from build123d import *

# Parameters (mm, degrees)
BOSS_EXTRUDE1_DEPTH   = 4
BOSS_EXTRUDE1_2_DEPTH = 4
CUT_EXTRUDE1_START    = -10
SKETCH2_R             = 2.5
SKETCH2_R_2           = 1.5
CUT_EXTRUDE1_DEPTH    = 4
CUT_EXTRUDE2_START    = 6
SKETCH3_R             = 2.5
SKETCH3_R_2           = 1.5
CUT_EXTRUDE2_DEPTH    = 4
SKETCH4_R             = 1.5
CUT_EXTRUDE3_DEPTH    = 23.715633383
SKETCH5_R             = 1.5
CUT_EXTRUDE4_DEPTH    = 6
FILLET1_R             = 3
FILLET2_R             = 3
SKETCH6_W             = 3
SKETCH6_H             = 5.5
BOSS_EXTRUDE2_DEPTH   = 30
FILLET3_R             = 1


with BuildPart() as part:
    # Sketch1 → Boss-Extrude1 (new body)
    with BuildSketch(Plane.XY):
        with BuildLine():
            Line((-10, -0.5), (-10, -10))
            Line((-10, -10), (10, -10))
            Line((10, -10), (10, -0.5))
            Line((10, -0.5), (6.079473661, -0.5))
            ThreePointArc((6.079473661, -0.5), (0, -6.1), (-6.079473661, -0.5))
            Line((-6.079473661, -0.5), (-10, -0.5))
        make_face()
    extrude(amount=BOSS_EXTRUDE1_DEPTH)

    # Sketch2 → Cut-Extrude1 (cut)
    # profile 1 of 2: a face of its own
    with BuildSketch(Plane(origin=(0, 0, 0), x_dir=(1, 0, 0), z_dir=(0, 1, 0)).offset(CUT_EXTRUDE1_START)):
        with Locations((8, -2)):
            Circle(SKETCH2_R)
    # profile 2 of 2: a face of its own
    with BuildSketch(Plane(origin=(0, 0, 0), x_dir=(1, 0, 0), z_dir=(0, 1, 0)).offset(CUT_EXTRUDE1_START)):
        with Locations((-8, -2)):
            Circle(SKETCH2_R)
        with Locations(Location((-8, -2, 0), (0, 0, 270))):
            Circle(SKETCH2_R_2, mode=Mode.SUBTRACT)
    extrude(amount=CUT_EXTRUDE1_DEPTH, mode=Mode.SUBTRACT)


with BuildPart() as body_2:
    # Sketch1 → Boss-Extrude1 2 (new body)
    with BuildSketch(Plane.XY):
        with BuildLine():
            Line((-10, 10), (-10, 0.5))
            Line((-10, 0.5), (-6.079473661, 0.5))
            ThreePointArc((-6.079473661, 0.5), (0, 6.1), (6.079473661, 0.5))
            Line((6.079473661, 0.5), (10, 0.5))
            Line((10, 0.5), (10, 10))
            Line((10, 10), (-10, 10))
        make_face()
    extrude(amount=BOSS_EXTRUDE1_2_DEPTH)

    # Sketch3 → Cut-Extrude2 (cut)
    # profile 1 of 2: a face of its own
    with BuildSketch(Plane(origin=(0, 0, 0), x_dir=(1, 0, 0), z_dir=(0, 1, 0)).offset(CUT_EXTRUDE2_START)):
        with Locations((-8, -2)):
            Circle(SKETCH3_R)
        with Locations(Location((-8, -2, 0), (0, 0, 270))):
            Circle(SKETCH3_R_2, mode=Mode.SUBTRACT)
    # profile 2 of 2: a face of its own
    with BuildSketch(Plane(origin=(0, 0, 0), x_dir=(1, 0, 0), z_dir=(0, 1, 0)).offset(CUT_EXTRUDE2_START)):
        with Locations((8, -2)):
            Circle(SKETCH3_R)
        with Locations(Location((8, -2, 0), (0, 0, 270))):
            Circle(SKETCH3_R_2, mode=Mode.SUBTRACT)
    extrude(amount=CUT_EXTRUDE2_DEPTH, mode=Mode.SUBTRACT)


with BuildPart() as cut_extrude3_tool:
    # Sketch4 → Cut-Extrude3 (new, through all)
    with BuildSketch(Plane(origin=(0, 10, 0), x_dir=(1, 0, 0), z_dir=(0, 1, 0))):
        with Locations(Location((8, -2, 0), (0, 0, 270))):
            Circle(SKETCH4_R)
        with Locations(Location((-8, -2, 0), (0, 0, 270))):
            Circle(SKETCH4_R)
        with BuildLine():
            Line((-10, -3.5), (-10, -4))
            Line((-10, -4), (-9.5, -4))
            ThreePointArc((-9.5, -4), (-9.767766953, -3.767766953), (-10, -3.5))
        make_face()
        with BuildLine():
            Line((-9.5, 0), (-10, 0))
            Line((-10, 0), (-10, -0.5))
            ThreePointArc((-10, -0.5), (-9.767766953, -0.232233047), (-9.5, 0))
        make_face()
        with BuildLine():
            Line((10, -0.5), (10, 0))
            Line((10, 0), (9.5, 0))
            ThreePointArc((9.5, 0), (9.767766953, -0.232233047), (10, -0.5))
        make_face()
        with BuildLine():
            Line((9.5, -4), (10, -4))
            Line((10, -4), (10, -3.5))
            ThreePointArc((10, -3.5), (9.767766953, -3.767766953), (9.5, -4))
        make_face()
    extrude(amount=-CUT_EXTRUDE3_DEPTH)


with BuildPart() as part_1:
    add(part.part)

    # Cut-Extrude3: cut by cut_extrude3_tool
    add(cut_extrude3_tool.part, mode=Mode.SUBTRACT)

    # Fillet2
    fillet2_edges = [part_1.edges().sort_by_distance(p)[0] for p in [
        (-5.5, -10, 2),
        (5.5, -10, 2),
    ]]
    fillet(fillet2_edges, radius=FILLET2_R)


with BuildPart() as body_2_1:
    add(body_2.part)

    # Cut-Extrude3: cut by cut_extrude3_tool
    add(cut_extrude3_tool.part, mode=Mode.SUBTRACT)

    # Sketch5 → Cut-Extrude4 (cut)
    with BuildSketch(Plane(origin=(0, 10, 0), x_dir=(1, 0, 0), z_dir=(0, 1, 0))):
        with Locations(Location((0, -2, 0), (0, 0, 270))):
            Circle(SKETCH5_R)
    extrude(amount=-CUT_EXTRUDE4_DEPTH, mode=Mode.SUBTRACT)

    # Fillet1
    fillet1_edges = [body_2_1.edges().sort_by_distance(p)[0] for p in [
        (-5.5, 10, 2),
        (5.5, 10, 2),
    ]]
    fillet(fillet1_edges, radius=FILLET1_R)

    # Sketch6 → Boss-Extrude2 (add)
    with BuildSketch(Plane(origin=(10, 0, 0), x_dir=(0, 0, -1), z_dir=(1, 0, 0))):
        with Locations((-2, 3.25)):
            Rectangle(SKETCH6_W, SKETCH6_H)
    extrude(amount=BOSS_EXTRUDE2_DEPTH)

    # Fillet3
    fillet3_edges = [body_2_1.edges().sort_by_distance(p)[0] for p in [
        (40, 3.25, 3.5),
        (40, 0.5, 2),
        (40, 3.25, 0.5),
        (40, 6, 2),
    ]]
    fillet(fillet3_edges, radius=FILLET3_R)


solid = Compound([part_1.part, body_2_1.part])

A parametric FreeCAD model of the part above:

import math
import FreeCAD as App
import Part
import Sketcher

V = App.Vector


def edges_at(feature, points):
    """Names of the edges that pass closest to the given points."""
    edges = feature.Shape.Edges
    near = lambda p: min(range(len(edges)), key=lambda i: edges[i].distToShape(Part.Vertex(*p))[0])
    return sorted({f"Edge{near(p) + 1}" for p in points})

doc = App.newDocument("Part")
body = doc.addObject("PartDesign::Body", "Body")

sketch1 = body.newObject("Sketcher::SketchObject", "Sketch")
sketch1.AttachmentSupport = (doc.getObject("XY_Plane"), [""])
sketch1.MapMode = "FlatFace"
sketch1.addGeometry([
    Part.LineSegment(V(-10, -0.5, 0), V(-10, -10, 0)),
    Part.LineSegment(V(-10, -10, 0), V(10, -10, 0)),
    Part.LineSegment(V(10, -10, 0), V(10, -0.5, 0)),
    Part.LineSegment(V(10, -0.5, 0), V(6.1, -0.5, 0)),
    Part.ArcOfCircle(Part.Circle(V(0, 0, 0), V(0, 0, 1), 6.1), math.radians(-175), math.radians(-5)),
    Part.LineSegment(V(-6.1, -0.5, 0), V(-10, -0.5, 0)),
], False)
sketch1.addConstraint([
    Sketcher.Constraint("Coincident", 0, 2, 1, 1),
    Sketcher.Constraint("Coincident", 1, 2, 2, 1),
    Sketcher.Constraint("Coincident", 2, 2, 3, 1),
    Sketcher.Constraint("Coincident", 3, 2, 4, 2),
    Sketcher.Constraint("Coincident", 4, 1, 5, 1),
    Sketcher.Constraint("Coincident", 5, 2, 0, 1),
    Sketcher.Constraint("Vertical", 0),
    Sketcher.Constraint("Horizontal", 1),
    Sketcher.Constraint("Vertical", 2),
    Sketcher.Constraint("Horizontal", 3),
    Sketcher.Constraint("Horizontal", 5),
    Sketcher.Constraint("Coincident", 4, 3, -1, 1),
    Sketcher.Constraint("Symmetric", 2, 2, 5, 2, -2),
    Sketcher.Constraint("Radius", 4, 6.1),
    Sketcher.Constraint("DistanceX", 1, 1, 1, 2, 20.0),
    Sketcher.Constraint("DistanceY", 0, 2, 0, 1, 9.5),
    Sketcher.Constraint("DistanceY", 0, 2, -1, 1, 10.0),
])
pad1 = body.newObject("PartDesign::Pad", "Pad")
pad1.Profile = sketch1
pad1.Length = 4

sketch2 = body.newObject("Sketcher::SketchObject", "Sketch001")
sketch2.AttachmentSupport = (doc.getObject("XZ_Plane"), [""])
sketch2.MapMode = "FlatFace"
sketch2.AttachmentOffset = App.Placement(V(0, 0, 10), App.Rotation())
sketch2.addGeometry([
    Part.Circle(V(8, 2, 0), V(0, 0, 1), 2.5),
    Part.Circle(V(-8, 2, 0), V(0, 0, 1), 2.5),
    Part.Circle(V(-8, 2, 0), V(0, 0, 1), 1.5),
], False)
sketch2.addConstraint([
    Sketcher.Constraint("Coincident", 2, 3, 1, 3),
    Sketcher.Constraint("Equal", 0, 1),
    Sketcher.Constraint("Symmetric", 0, 3, 1, 3, -2),
    Sketcher.Constraint("Diameter", 0, 5.0),
    Sketcher.Constraint("Diameter", 2, 3.0),
    Sketcher.Constraint("DistanceX", -1, 1, 0, 3, 8.0),
    Sketcher.Constraint("DistanceY", -1, 1, 0, 3, 2.0),
])
pocket1 = body.newObject("PartDesign::Pocket", "Pocket")
pocket1.Profile = sketch2
pocket1.Length = 4
body2 = doc.addObject("PartDesign::Body", "Body001")

sketch3 = body2.newObject("Sketcher::SketchObject", "Sketch002")
sketch3.AttachmentSupport = (doc.getObject("XY_Plane001"), [""])
sketch3.MapMode = "FlatFace"
sketch3.addGeometry([
    Part.LineSegment(V(-10, 10, 0), V(-10, 0.5, 0)),
    Part.LineSegment(V(-10, 0.5, 0), V(-6.1, 0.5, 0)),
    Part.ArcOfCircle(Part.Circle(V(0, 0, 0), V(0, 0, 1), 6.1), math.radians(5), math.radians(175)),
    Part.LineSegment(V(6.1, 0.5, 0), V(10, 0.5, 0)),
    Part.LineSegment(V(10, 0.5, 0), V(10, 10, 0)),
    Part.LineSegment(V(10, 10, 0), V(-10, 10, 0)),
], False)
sketch3.addConstraint([
    Sketcher.Constraint("Coincident", 0, 2, 1, 1),
    Sketcher.Constraint("Coincident", 1, 2, 2, 2),
    Sketcher.Constraint("Coincident", 2, 1, 3, 1),
    Sketcher.Constraint("Coincident", 3, 2, 4, 1),
    Sketcher.Constraint("Coincident", 4, 2, 5, 1),
    Sketcher.Constraint("Coincident", 5, 2, 0, 1),
    Sketcher.Constraint("Vertical", 0),
    Sketcher.Constraint("Horizontal", 1),
    Sketcher.Constraint("Horizontal", 3),
    Sketcher.Constraint("Vertical", 4),
    Sketcher.Constraint("Horizontal", 5),
    Sketcher.Constraint("Coincident", 2, 3, -1, 1),
    Sketcher.Constraint("Symmetric", 0, 2, 3, 2, -2),
    Sketcher.Constraint("Radius", 2, 6.1),
    Sketcher.Constraint("DistanceX", 5, 2, 5, 1, 20.0),
    Sketcher.Constraint("DistanceY", 0, 2, 0, 1, 9.5),
    Sketcher.Constraint("DistanceY", -1, 1, 4, 2, 10.0),
])
pad2 = body2.newObject("PartDesign::Pad", "Pad001")
pad2.Profile = sketch3
pad2.Length = 4

sketch4 = body2.newObject("Sketcher::SketchObject", "Sketch003")
sketch4.AttachmentSupport = (doc.getObject("XZ_Plane001"), [""])
sketch4.MapMode = "FlatFace"
sketch4.AttachmentOffset = App.Placement(V(0, 0, -6), App.Rotation())
sketch4.addGeometry([
    Part.Circle(V(-8, 2, 0), V(0, 0, 1), 2.5),
    Part.Circle(V(-8, 2, 0), V(0, 0, 1), 1.5),
    Part.Circle(V(8, 2, 0), V(0, 0, 1), 2.5),
    Part.Circle(V(8, 2, 0), V(0, 0, 1), 1.5),
], False)
sketch4.addConstraint([
    Sketcher.Constraint("Coincident", 1, 3, 0, 3),
    Sketcher.Constraint("Coincident", 3, 3, 2, 3),
    Sketcher.Constraint("Equal", 0, 2),
    Sketcher.Constraint("Equal", 1, 3),
    Sketcher.Constraint("Symmetric", 0, 3, 2, 3, -2),
    Sketcher.Constraint("Diameter", 0, 5.0),
    Sketcher.Constraint("Diameter", 1, 3.0),
    Sketcher.Constraint("DistanceX", 0, 3, -1, 1, 8.0),
    Sketcher.Constraint("DistanceY", -1, 1, 0, 3, 2.0),
])
pocket2 = body2.newObject("PartDesign::Pocket", "Pocket001")
pocket2.Profile = sketch4
pocket2.Length = 4
body3 = doc.addObject("PartDesign::Body", "Body002")
body3.AllowCompound = True

sketch5 = body3.newObject("Sketcher::SketchObject", "Sketch004")
sketch5.AttachmentSupport = (doc.getObject("XZ_Plane002"), [""])
sketch5.MapMode = "FlatFace"
sketch5.AttachmentOffset = App.Placement(V(0, 0, -10), App.Rotation())
sketch5.addGeometry([
    Part.Circle(V(8, 2, 0), V(0, 0, 1), 1.5),
    Part.Circle(V(-8, 2, 0), V(0, 0, 1), 1.5),
    Part.LineSegment(V(-10, 3.5, 0), V(-10, 4, 0)),
    Part.LineSegment(V(-10, 4, 0), V(-9.5, 4, 0)),
    Part.ArcOfCircle(Part.Circle(V(-8, 2, 0), V(0, 0, 1), 2.5), math.radians(126.87), math.radians(143.13)),
    Part.LineSegment(V(-9.5, 0, 0), V(-10, 0, 0)),
    Part.LineSegment(V(-10, 0, 0), V(-10, 0.5, 0)),
    Part.ArcOfCircle(Part.Circle(V(-8, 2, 0), V(0, 0, 1), 2.5), math.radians(-143.13), math.radians(-126.87)),
    Part.LineSegment(V(10, 0.5, 0), V(10, 0, 0)),
    Part.LineSegment(V(10, 0, 0), V(9.5, 0, 0)),
    Part.ArcOfCircle(Part.Circle(V(8, 2, 0), V(0, 0, 1), 2.5), math.radians(-53.13), math.radians(-36.87)),
    Part.LineSegment(V(9.5, 4, 0), V(10, 4, 0)),
    Part.LineSegment(V(10, 4, 0), V(10, 3.5, 0)),
    Part.ArcOfCircle(Part.Circle(V(8, 2, 0), V(0, 0, 1), 2.5), math.radians(36.87), math.radians(53.13)),
], False)
sketch5.addConstraint([
    Sketcher.Constraint("Coincident", 2, 2, 3, 1),
    Sketcher.Constraint("Coincident", 3, 2, 4, 1),
    Sketcher.Constraint("Coincident", 4, 2, 2, 1),
    Sketcher.Constraint("Coincident", 5, 2, 6, 1),
    Sketcher.Constraint("Coincident", 6, 2, 7, 1),
    Sketcher.Constraint("Coincident", 7, 2, 5, 1),
    Sketcher.Constraint("Coincident", 8, 2, 9, 1),
    Sketcher.Constraint("Coincident", 9, 2, 10, 1),
    Sketcher.Constraint("Coincident", 10, 2, 8, 1),
    Sketcher.Constraint("Coincident", 11, 2, 12, 1),
    Sketcher.Constraint("Coincident", 12, 2, 13, 1),
    Sketcher.Constraint("Coincident", 13, 2, 11, 1),
    Sketcher.Constraint("Vertical", 2),
    Sketcher.Constraint("Horizontal", 3),
    Sketcher.Constraint("Horizontal", 5),
    Sketcher.Constraint("Vertical", 6),
    Sketcher.Constraint("Vertical", 8),
    Sketcher.Constraint("Horizontal", 9),
    Sketcher.Constraint("Horizontal", 11),
    Sketcher.Constraint("Vertical", 12),
    Sketcher.Constraint("Coincident", 4, 3, 1, 3),
    Sketcher.Constraint("Coincident", 7, 3, 1, 3),
    Sketcher.Constraint("Coincident", 10, 3, 0, 3),
    Sketcher.Constraint("Coincident", 13, 3, 0, 3),
    Sketcher.Constraint("Equal", 0, 1),
    Sketcher.Constraint("Equal", 4, 7),
    Sketcher.Constraint("Equal", 7, 10),
    Sketcher.Constraint("Equal", 10, 13),
    Sketcher.Constraint("Symmetric", 5, 2, 8, 2, -1, 1),
    Sketcher.Constraint("Symmetric", 0, 3, 1, 3, -2),
    Sketcher.Constraint("Symmetric", 2, 2, 11, 2, -2),
    Sketcher.Constraint("PointOnObject", 5, 2, -1),
    Sketcher.Constraint("Vertical", 4, 2, 5, 2),
    Sketcher.Constraint("Vertical", 3, 2, 7, 2),
    Sketcher.Constraint("Equal", 11, 2),
    Sketcher.Constraint("Diameter", 0, 3.0),
    Sketcher.Constraint("Radius", 4, 2.5),
    Sketcher.Constraint("DistanceX", 3, 1, 3, 2, 0.5),
    Sketcher.Constraint("DistanceX", -1, 1, 0, 3, 8.0),
])
pad3 = body3.newObject("PartDesign::Pad", "Pad002")
pad3.Profile = sketch5
pad3.Length = 23.715633
doc.recompute()

body4 = doc.addObject("PartDesign::Body", "Body003")
body4.BaseFeature = body3
boolean = body.newObject("PartDesign::Boolean", "Boolean")
boolean.Type = "Cut"
boolean.addObjects([body4])
doc.recompute()

fillet = body.newObject("PartDesign::Fillet", "Fillet")
fillet.Base = (boolean, edges_at(boolean, [(-5.5, -10, 2), (5.5, -10, 2)]))
fillet.Radius = 3
doc.recompute()

boolean2 = body2.newObject("PartDesign::Boolean", "Boolean001")
boolean2.Type = "Cut"
boolean2.addObjects([body3])

sketch6 = body2.newObject("Sketcher::SketchObject", "Sketch005")
sketch6.AttachmentSupport = (doc.getObject("XZ_Plane001"), [""])
sketch6.MapMode = "FlatFace"
sketch6.AttachmentOffset = App.Placement(V(0, 0, -10), App.Rotation())
sketch6.addGeometry(Part.Circle(V(0, 2, 0), V(0, 0, 1), 1.5), False)
sketch6.addConstraint([
    Sketcher.Constraint("PointOnObject", 0, 3, -2),
    Sketcher.Constraint("Diameter", 0, 3.0),
    Sketcher.Constraint("DistanceY", -1, 1, 0, 3, 2.0),
])
pocket3 = body2.newObject("PartDesign::Pocket", "Pocket002")
pocket3.Profile = sketch6
pocket3.Length = 6
pocket3.Reversed = True
doc.recompute()

fillet2 = body2.newObject("PartDesign::Fillet", "Fillet001")
fillet2.Base = (pocket3, edges_at(pocket3, [(-5.5, 10, 2), (5.5, 10, 2)]))
fillet2.Radius = 3

sketch7 = body2.newObject("Sketcher::SketchObject", "Sketch006")
sketch7.AttachmentSupport = (doc.getObject("YZ_Plane001"), [""])
sketch7.MapMode = "FlatFace"
sketch7.AttachmentOffset = App.Placement(V(0, 0, 10), App.Rotation())
sketch7.addGeometry([
    Part.LineSegment(V(6, 3.5, 0), V(0.5, 3.5, 0)),
    Part.LineSegment(V(0.5, 3.5, 0), V(0.5, 0.5, 0)),
    Part.LineSegment(V(0.5, 0.5, 0), V(6, 0.5, 0)),
    Part.LineSegment(V(6, 0.5, 0), V(6, 3.5, 0)),
], False)
sketch7.addConstraint([
    Sketcher.Constraint("Coincident", 0, 2, 1, 1),
    Sketcher.Constraint("Coincident", 1, 2, 2, 1),
    Sketcher.Constraint("Coincident", 2, 2, 3, 1),
    Sketcher.Constraint("Coincident", 3, 2, 0, 1),
    Sketcher.Constraint("Horizontal", 0),
    Sketcher.Constraint("Vertical", 1),
    Sketcher.Constraint("Horizontal", 2),
    Sketcher.Constraint("Vertical", 3),
    Sketcher.Constraint("DistanceY", 1, 2, 1, 1, 3.0),
    Sketcher.Constraint("DistanceX", 0, 2, 0, 1, 5.5),
    Sketcher.Constraint("DistanceX", -1, 1, 2, 2, 6.0),
    Sketcher.Constraint("DistanceY", -1, 1, 0, 2, 3.5),
])
pad4 = body2.newObject("PartDesign::Pad", "Pad003")
pad4.Profile = sketch7
pad4.Length = 30
doc.recompute()

fillet3 = body2.newObject("PartDesign::Fillet", "Fillet002")
fillet3.Base = (pad4, edges_at(pad4, [
    (40, 3.25, 3.5),
    (40, 0.5, 2),
    (40, 3.25, 0.5),
    (40, 6, 2),
]))
fillet3.Radius = 1

doc.recompute()
